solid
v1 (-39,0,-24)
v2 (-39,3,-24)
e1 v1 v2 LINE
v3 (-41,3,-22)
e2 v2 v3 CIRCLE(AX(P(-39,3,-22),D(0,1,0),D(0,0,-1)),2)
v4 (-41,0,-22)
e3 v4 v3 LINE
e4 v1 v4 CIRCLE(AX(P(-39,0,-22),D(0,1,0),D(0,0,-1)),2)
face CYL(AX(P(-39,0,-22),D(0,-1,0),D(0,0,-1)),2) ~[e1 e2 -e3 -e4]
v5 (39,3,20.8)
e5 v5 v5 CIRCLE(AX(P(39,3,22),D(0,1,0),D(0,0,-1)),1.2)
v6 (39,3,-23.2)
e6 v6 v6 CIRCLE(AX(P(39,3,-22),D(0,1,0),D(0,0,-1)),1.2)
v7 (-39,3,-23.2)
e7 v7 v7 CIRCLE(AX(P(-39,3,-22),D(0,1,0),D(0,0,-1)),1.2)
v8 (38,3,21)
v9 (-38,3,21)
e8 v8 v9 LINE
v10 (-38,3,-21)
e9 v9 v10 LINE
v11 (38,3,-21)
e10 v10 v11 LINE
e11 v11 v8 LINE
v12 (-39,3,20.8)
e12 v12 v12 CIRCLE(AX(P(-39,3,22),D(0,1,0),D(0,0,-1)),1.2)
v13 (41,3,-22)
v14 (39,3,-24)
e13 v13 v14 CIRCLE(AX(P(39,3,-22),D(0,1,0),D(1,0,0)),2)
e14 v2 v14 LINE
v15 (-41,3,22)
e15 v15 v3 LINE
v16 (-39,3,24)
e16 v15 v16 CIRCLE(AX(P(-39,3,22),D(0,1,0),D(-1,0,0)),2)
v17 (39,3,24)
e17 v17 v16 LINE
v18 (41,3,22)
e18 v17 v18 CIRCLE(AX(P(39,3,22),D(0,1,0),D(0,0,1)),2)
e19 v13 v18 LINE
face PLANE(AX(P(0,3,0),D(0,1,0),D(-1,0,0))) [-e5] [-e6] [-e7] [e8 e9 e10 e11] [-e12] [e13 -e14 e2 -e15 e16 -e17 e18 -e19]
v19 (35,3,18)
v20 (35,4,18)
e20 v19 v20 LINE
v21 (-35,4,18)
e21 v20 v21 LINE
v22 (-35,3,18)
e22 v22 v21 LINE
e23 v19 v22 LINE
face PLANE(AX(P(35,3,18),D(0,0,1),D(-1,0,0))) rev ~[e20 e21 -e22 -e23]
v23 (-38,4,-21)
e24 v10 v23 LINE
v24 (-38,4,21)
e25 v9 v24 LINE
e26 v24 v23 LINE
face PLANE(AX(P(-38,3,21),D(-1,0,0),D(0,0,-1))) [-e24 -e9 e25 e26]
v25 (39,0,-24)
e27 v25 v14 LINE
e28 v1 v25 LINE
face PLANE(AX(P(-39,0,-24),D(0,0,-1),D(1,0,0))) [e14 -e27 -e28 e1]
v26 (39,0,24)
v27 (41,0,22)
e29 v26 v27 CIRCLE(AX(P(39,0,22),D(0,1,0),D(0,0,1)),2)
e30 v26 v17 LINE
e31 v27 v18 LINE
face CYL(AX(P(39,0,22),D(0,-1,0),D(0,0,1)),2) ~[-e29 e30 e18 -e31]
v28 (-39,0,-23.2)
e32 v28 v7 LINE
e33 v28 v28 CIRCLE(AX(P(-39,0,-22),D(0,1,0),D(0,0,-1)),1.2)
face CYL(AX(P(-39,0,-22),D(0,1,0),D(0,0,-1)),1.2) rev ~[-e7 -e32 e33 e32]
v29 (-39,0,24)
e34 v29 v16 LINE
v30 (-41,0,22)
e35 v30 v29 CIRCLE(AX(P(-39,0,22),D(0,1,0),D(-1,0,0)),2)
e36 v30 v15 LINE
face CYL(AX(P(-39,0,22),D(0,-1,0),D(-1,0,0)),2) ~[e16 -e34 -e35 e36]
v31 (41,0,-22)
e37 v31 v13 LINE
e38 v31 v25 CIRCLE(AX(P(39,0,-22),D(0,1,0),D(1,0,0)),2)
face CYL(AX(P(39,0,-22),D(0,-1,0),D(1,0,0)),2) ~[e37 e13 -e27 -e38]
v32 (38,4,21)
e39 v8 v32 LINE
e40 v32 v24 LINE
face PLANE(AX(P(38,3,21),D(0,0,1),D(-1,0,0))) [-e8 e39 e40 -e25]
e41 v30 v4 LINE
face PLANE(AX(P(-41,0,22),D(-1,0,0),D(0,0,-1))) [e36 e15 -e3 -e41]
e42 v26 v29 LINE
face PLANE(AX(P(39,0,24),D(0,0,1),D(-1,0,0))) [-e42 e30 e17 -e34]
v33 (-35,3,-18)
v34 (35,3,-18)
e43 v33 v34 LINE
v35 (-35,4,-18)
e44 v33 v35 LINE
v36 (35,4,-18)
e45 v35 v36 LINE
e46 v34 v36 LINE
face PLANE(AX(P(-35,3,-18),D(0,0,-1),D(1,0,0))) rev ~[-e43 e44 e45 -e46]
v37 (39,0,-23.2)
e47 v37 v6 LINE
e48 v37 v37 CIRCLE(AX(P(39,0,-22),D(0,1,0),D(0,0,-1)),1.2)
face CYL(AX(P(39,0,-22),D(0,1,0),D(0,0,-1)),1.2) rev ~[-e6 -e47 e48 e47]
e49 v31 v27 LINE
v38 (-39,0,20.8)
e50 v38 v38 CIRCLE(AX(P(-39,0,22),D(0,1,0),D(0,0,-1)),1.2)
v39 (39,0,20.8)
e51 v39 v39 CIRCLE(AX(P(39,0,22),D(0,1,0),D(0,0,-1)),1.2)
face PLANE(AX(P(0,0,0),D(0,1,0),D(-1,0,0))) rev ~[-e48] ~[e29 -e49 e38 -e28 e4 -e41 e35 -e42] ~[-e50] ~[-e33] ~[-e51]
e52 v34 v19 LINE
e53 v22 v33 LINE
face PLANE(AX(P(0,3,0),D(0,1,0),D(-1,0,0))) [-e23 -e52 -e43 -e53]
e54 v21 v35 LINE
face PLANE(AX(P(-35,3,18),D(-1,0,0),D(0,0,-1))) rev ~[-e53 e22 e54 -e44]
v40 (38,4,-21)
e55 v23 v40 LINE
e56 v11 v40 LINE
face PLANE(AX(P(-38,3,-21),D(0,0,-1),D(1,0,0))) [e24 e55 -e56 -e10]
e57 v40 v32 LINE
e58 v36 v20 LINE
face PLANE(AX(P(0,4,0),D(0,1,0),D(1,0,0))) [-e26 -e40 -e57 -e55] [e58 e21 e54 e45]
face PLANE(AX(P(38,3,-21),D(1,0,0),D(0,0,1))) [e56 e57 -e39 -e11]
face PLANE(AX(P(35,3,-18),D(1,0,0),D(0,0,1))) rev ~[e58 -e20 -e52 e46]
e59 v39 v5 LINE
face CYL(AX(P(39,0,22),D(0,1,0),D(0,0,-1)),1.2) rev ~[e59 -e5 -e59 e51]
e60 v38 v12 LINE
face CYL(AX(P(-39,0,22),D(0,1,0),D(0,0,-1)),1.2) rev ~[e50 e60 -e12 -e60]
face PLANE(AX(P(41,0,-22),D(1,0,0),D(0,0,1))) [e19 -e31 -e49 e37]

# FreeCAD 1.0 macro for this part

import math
import FreeCAD as App
import Part
import Sketcher

V = App.Vector


def add_polygon(sketch, points):
    """Adds a closed chain of lines whose ends are joined by coincident constraints."""
    first, n = sketch.GeometryCount, len(points)
    for a, b in zip(points, points[1:] + points[:1]):
        sketch.addGeometry(Part.LineSegment(App.Vector(*a, 0), App.Vector(*b, 0)), False)
    for i in range(n):
        sketch.addConstraint(Sketcher.Constraint("Coincident", first + i, 2, first + (i + 1) % n, 1))

doc = App.newDocument("Part")
body = doc.addObject("PartDesign::Body", "Body")

# Sketch on XZ plane
sketch1 = body.newObject("Sketcher::SketchObject", "Sketch")
sketch1.AttachmentSupport = (doc.getObject("XZ_Plane"), [""])
sketch1.MapMode = "FlatFace"
sketch1.addGeometry([
    Part.LineSegment(V(-39, 24, 0), V(39, 24, 0)),  # 0
    Part.ArcOfCircle(Part.Circle(V(39, 22, 0), V(0, 0, 1), 2), math.radians(0), math.radians(90)),  # 1
    Part.LineSegment(V(41, 22, 0), V(41, -22, 0)),  # 2
    Part.ArcOfCircle(Part.Circle(V(39, -22, 0), V(0, 0, 1), 2), math.radians(-90), math.radians(0)),  # 3
    Part.LineSegment(V(39, -24, 0), V(-39, -24, 0)),  # 4
    Part.ArcOfCircle(Part.Circle(V(-39, -22, 0), V(0, 0, 1), 2), math.radians(180), math.radians(270)),  # 5
    Part.LineSegment(V(-41, -22, 0), V(-41, 22, 0)),  # 6
    Part.ArcOfCircle(Part.Circle(V(-39, 22, 0), V(0, 0, 1), 2), math.radians(90), math.radians(180)),  # 7
], False)
sketch1.addConstraint([
    Sketcher.Constraint("Tangent", 0, 2, 1, 2),
    Sketcher.Constraint("Tangent", 1, 1, 2, 1),
    Sketcher.Constraint("Tangent", 2, 2, 3, 2),
    Sketcher.Constraint("Tangent", 3, 1, 4, 1),
    Sketcher.Constraint("Tangent", 4, 2, 5, 2),
    Sketcher.Constraint("Tangent", 5, 1, 6, 1),
    Sketcher.Constraint("Tangent", 6, 2, 7, 2),
    Sketcher.Constraint("Tangent", 7, 1, 0, 1),
    Sketcher.Constraint("Horizontal", 0),
    Sketcher.Constraint("Vertical", 2),
    Sketcher.Constraint("Horizontal", 4),
    Sketcher.Constraint("Vertical", 6),
    Sketcher.Constraint("Equal", 1, 3),
    Sketcher.Constraint("Equal", 3, 5),
    Sketcher.Constraint("Equal", 5, 7),
    Sketcher.Constraint("Symmetric", 1, 3, 5, 3, -1, 1),
    Sketcher.Constraint("Radius", 1, 2.0),
    Sketcher.Constraint("DistanceY", 3, 1, 0, 2, 48.0),
    Sketcher.Constraint("DistanceX", 0, 1, 0, 2, 78.0),
])
pad1 = body.newObject("PartDesign::Pad", "Pad")
pad1.Profile = sketch1
pad1.Length = 3
pad1.Reversed = True

# Sketch on XZ plane
sketch2 = body.newObject("Sketcher::SketchObject", "Sketch001")
sketch2.AttachmentSupport = (doc.getObject("XZ_Plane"), [""])
sketch2.MapMode = "FlatFace"
sketch2.AttachmentOffset = App.Placement(V(0, 0, -3), App.Rotation())
add_polygon(sketch2, [(-38, 21), (38, 21), (38, -21), (-38, -21)])  # lines 0-3
add_polygon(sketch2, [(35, -18), (35, 18), (-35, 18), (-35, -18)])  # lines 4-7
sketch2.addConstraint([
    Sketcher.Constraint("Horizontal", 0),
    Sketcher.Constraint("Vertical", 1),
    Sketcher.Constraint("Horizontal", 2),
    Sketcher.Constraint("Vertical", 3),
    Sketcher.Constraint("Vertical", 4),
    Sketcher.Constraint("Horizontal", 5),
    Sketcher.Constraint("Vertical", 6),
    Sketcher.Constraint("Horizontal", 7),
    Sketcher.Constraint("Symmetric", 0, 2, 2, 2, -1, 1),
    Sketcher.Constraint("Symmetric", 4, 2, 6, 2, -1, 1),
    Sketcher.Constraint("DistanceX", 4, 2, 0, 2, 3.0),
    Sketcher.Constraint("DistanceY", 4, 2, 0, 2, 3.0),
    Sketcher.Constraint("DistanceX", 0, 1, 0, 2, 76.0),
    Sketcher.Constraint("DistanceY", 1, 2, 1, 1, 42.0),
])
pad2 = body.newObject("PartDesign::Pad", "Pad001")
pad2.Profile = sketch2
pad2.Length = 1
pad2.Reversed = True

# Sketch on XZ plane
sketch3 = body.newObject("Sketcher::SketchObject", "Sketch002")
sketch3.AttachmentSupport = (doc.getObject("XZ_Plane"), [""])
sketch3.MapMode = "FlatFace"
sketch3.addGeometry(Part.Circle(V(-39, 22, 0), V(0, 0, 1), 1.2), False)
sketch3.addConstraint([
    Sketcher.Constraint("Diameter", 0, 2.4),
    Sketcher.Constraint("DistanceX", 0, 3, -1, 1, 39.0),
    Sketcher.Constraint("DistanceY", -1, 1, 0, 3, 22.0),
])
doc.recompute()
hole = body.newObject("PartDesign::Hole", "Hole")
hole.Profile = sketch3
hole.ThreadType = "None"
hole.Diameter = 2.4
hole.DepthType = "ThroughAll"

# Sketch on XZ plane
sketch4 = body.newObject("Sketcher::SketchObject", "Sketch003")
sketch4.AttachmentSupport = (doc.getObject("XZ_Plane"), [""])
sketch4.MapMode = "FlatFace"
sketch4.addGeometry(Part.Circle(V(-39, -22, 0), V(0, 0, 1), 1.2), False)
sketch4.addConstraint([
    Sketcher.Constraint("Diameter", 0, 2.4),
    Sketcher.Constraint("DistanceX", 0, 3, -1, 1, 39.0),
    Sketcher.Constraint("DistanceY", 0, 3, -1, 1, 22.0),
])
doc.recompute()
hole2 = body.newObject("PartDesign::Hole", "Hole001")
hole2.Profile = sketch4
hole2.ThreadType = "None"
hole2.Diameter = 2.4
hole2.DepthType = "ThroughAll"

# Sketch on XZ plane
sketch5 = body.newObject("Sketcher::SketchObject", "Sketch004")
sketch5.AttachmentSupport = (doc.getObject("XZ_Plane"), [""])
sketch5.MapMode = "FlatFace"
sketch5.addGeometry(Part.Circle(V(39, 22, 0), V(0, 0, 1), 1.2), False)
sketch5.addConstraint([
    Sketcher.Constraint("Diameter", 0, 2.4),
    Sketcher.Constraint("DistanceX", -1, 1, 0, 3, 39.0),
    Sketcher.Constraint("DistanceY", -1, 1, 0, 3, 22.0),
])
doc.recompute()
hole3 = body.newObject("PartDesign::Hole", "Hole002")
hole3.Profile = sketch5
hole3.ThreadType = "None"
hole3.Diameter = 2.4
hole3.DepthType = "ThroughAll"

# Sketch on XZ plane
sketch6 = body.newObject("Sketcher::SketchObject", "Sketch005")
sketch6.AttachmentSupport = (doc.getObject("XZ_Plane"), [""])
sketch6.MapMode = "FlatFace"
sketch6.addGeometry(Part.Circle(V(39, -22, 0), V(0, 0, 1), 1.2), False)
sketch6.addConstraint([
    Sketcher.Constraint("Diameter", 0, 2.4),
    Sketcher.Constraint("DistanceX", -1, 1, 0, 3, 39.0),
    Sketcher.Constraint("DistanceY", 0, 3, -1, 1, 22.0),
])
doc.recompute()
hole4 = body.newObject("PartDesign::Hole", "Hole003")
hole4.Profile = sketch6
hole4.ThreadType = "None"
hole4.Diameter = 2.4
hole4.DepthType = "ThroughAll"

doc.recompute()
